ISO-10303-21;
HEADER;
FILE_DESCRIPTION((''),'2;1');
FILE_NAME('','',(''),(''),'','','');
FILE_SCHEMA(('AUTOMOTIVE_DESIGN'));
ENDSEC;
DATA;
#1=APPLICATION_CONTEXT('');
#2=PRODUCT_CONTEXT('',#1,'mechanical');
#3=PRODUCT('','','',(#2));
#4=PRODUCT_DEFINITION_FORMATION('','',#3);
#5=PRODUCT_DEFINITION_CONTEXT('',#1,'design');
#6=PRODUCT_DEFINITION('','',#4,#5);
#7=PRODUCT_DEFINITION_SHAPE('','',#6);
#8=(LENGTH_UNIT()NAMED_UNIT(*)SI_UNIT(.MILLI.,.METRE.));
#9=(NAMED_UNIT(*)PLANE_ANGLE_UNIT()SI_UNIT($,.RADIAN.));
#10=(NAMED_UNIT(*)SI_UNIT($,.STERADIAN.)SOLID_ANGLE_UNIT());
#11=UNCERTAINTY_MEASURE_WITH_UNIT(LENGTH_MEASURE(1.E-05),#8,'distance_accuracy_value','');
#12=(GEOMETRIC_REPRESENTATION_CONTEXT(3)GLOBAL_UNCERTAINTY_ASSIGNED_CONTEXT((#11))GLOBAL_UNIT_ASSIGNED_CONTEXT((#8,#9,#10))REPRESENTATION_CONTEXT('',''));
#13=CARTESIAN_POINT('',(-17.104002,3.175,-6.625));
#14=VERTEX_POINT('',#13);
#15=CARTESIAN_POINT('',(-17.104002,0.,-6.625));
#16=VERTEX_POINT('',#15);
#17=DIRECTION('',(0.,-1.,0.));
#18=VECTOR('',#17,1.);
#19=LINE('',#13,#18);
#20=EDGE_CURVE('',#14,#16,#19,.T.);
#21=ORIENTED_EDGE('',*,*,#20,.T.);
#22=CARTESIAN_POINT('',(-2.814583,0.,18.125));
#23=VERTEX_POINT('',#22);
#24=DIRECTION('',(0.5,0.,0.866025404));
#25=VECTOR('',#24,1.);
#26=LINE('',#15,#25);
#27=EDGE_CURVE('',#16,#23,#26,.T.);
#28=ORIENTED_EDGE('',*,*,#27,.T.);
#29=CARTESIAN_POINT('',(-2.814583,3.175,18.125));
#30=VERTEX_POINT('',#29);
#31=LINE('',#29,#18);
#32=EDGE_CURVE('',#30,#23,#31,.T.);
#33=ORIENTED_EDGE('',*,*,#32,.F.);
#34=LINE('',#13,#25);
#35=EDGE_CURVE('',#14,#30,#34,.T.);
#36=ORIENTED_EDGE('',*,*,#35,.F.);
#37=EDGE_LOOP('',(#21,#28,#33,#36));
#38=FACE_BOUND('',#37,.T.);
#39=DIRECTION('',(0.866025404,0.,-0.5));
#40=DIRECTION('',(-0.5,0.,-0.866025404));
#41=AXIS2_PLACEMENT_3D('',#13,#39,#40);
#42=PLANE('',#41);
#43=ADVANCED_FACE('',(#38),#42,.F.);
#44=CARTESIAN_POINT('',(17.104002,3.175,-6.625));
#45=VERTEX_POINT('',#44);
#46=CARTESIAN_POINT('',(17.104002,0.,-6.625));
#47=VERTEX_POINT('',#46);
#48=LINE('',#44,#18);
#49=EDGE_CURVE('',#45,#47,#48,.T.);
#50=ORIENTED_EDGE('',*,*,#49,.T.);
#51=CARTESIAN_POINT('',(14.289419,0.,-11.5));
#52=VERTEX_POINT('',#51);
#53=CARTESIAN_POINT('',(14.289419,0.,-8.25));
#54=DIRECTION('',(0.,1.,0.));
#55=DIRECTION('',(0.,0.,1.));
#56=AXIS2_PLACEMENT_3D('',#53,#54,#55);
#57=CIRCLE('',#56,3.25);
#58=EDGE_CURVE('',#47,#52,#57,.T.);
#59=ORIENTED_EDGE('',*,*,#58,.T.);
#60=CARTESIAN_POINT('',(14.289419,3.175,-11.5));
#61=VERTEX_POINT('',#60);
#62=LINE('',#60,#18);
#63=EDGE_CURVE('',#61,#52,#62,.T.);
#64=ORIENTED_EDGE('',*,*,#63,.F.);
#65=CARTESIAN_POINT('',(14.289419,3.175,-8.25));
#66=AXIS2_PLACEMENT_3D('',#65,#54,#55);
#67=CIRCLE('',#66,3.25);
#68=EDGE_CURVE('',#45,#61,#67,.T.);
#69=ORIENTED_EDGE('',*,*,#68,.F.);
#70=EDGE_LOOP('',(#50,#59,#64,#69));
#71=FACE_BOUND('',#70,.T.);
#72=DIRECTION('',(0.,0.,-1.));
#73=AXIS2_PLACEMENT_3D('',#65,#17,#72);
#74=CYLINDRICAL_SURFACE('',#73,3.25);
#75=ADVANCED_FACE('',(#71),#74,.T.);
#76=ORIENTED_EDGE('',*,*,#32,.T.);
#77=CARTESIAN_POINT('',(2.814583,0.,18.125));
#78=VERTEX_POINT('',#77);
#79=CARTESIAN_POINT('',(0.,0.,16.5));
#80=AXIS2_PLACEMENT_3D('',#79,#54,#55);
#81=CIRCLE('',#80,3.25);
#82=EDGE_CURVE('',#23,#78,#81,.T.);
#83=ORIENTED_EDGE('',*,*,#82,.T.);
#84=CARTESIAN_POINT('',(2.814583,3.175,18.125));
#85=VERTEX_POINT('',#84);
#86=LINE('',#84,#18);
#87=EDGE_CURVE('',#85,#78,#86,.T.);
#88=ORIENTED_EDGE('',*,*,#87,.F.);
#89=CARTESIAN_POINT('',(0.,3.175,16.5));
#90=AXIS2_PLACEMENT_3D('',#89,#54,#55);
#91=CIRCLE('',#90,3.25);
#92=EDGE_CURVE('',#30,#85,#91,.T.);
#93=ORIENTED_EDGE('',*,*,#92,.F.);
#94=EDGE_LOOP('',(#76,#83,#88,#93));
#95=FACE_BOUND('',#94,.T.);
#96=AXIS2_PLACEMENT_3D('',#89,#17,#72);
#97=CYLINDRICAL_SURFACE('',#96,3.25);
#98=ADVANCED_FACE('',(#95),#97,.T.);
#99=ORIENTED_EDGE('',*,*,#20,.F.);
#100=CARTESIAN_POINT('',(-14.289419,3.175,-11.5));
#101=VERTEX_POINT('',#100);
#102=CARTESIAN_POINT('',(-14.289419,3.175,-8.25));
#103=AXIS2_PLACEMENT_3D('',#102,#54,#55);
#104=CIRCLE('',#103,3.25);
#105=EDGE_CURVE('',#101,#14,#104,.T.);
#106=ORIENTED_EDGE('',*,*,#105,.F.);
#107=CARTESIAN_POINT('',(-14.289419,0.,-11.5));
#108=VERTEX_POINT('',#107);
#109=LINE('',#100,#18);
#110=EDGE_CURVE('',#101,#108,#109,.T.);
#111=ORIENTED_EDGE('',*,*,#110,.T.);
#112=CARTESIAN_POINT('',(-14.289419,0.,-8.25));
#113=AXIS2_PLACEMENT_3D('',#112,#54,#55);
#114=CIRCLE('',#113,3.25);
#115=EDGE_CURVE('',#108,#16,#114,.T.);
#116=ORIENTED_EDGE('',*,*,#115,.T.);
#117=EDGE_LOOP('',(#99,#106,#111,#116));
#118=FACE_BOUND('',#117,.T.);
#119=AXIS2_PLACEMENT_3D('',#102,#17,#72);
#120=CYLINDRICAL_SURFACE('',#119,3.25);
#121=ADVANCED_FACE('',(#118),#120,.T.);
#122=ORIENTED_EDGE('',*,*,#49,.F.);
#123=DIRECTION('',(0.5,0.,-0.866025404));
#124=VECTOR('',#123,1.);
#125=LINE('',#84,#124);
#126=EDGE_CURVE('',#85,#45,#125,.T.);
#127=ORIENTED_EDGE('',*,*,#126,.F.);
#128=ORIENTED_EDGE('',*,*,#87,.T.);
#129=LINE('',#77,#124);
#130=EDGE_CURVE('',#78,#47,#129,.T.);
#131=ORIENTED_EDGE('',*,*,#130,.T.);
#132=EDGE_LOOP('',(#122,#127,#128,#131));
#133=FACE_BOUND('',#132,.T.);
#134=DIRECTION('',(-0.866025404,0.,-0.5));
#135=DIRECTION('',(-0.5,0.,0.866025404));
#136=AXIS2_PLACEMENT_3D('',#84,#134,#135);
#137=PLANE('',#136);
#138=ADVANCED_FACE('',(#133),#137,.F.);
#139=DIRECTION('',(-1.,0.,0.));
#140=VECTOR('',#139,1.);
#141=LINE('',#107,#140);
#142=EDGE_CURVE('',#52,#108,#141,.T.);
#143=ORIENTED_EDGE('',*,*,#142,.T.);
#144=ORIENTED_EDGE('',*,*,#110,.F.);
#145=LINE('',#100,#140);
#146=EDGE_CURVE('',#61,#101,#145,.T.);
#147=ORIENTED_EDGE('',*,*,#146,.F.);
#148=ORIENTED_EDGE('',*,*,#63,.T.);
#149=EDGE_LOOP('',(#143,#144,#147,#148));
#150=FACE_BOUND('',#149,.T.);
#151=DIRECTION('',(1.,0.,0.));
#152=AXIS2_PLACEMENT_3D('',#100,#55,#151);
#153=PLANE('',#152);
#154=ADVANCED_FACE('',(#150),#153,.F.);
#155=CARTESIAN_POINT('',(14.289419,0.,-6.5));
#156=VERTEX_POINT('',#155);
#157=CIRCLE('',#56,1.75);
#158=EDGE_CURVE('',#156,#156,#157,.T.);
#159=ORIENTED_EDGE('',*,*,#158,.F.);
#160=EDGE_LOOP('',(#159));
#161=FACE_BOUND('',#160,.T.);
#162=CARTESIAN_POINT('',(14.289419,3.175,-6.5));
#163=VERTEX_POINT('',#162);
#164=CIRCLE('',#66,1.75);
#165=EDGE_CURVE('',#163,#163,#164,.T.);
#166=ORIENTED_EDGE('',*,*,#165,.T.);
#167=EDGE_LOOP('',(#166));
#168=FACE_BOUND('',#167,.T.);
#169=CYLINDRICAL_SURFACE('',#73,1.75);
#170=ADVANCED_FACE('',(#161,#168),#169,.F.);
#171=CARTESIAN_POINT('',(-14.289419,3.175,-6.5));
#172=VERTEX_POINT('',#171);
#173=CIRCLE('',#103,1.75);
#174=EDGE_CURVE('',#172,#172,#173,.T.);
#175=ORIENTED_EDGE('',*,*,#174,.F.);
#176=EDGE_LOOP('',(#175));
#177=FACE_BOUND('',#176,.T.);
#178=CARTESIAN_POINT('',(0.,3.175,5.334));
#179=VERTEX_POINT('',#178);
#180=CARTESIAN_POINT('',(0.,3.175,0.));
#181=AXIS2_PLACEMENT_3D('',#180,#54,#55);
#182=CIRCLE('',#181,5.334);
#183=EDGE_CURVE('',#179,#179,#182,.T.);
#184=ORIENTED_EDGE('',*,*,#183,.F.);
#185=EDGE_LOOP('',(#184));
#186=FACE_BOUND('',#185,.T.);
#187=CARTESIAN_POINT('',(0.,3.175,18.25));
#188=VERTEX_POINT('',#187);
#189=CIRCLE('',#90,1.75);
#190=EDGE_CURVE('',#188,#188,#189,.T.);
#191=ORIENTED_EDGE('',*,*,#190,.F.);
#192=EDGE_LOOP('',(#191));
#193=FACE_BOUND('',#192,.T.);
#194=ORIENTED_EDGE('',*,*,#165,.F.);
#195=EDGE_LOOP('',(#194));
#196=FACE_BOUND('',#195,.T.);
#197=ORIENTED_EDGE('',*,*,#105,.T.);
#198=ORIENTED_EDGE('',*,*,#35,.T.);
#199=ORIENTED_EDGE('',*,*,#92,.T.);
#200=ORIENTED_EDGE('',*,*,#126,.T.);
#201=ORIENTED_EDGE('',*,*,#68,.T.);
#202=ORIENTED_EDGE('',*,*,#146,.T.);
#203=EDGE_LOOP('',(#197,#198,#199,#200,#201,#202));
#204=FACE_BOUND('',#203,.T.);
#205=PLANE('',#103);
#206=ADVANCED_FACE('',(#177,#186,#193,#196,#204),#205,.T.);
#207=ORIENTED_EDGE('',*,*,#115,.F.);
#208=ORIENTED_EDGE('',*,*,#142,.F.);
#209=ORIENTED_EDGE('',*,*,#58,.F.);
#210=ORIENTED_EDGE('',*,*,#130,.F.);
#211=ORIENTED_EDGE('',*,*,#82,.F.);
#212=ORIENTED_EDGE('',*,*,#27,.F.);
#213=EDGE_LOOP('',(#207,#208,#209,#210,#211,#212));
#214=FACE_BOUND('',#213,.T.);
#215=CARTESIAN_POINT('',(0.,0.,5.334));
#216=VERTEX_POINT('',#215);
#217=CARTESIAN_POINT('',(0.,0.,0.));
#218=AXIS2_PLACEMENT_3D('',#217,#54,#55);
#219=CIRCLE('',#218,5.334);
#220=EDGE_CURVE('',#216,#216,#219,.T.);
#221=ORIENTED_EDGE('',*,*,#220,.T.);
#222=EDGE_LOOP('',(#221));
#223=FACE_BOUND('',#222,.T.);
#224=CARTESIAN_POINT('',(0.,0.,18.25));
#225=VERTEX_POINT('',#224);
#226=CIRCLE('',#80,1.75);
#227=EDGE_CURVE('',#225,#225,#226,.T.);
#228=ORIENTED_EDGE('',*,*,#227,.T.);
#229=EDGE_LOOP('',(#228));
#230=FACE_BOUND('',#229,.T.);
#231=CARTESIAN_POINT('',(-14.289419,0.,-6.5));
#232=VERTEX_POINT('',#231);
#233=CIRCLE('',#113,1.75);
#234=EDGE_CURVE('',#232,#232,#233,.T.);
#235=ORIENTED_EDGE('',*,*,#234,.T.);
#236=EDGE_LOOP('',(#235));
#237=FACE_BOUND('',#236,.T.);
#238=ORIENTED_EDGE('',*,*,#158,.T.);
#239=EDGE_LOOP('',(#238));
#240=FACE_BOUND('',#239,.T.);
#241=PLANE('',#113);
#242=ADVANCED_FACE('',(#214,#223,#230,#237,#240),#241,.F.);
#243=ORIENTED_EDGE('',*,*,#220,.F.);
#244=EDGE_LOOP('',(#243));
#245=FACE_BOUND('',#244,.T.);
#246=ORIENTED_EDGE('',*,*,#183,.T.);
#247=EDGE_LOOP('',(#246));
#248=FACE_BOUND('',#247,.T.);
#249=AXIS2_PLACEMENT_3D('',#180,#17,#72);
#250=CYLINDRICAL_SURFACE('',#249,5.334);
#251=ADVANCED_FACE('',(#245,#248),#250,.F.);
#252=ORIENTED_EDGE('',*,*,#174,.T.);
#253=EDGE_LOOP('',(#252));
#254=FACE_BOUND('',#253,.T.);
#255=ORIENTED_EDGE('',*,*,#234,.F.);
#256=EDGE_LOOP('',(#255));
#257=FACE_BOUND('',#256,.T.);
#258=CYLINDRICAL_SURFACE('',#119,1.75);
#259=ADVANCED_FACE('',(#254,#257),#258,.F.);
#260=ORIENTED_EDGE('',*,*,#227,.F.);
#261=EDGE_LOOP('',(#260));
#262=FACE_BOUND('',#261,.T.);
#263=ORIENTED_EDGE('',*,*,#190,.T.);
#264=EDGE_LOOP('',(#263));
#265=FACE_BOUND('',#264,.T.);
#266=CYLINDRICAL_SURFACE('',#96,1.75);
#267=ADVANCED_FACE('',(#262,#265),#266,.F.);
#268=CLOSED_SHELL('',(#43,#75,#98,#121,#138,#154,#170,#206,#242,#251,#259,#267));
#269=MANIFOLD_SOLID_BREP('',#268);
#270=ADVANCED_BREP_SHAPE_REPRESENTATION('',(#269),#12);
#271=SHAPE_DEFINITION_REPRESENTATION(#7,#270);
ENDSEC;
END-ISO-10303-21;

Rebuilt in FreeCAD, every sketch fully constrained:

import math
import FreeCAD as App
import Part
import Sketcher
Q = App.Units.Quantity

doc = App.newDocument("Part")
body = doc.addObject("PartDesign::Body", "Body")

# Sketch on XZ plane
sketch1 = body.newObject("Sketcher::SketchObject", "Sketch")
sketch1.AttachmentSupport = (doc.getObject("XZ_Plane"), [""])
sketch1.MapMode = "FlatFace"
sketch1.addGeometry([
    Part.LineSegment(App.Vector(-17.1, -6.6, 0), App.Vector(-2.8, 18.1, 0)),  # 0
    Part.ArcOfCircle(Part.Circle(App.Vector(0, 16.5, 0), App.Vector(0, 0, 1), 3.2), math.radians(30), math.radians(150)),  # 1
    Part.LineSegment(App.Vector(2.8, 18.1, 0), App.Vector(17.1, -6.6, 0)),  # 2
    Part.ArcOfCircle(Part.Circle(App.Vector(14.3, -8.2, 0), App.Vector(0, 0, 1), 3.2), math.radians(-90), math.radians(30)),  # 3
    Part.LineSegment(App.Vector(14.3, -11.5, 0), App.Vector(-14.3, -11.5, 0)),  # 4
    Part.ArcOfCircle(Part.Circle(App.Vector(-14.3, -8.2, 0), App.Vector(0, 0, 1), 3.2), math.radians(150), math.radians(270)),  # 5
    Part.Circle(App.Vector(0, 16.5, 0), App.Vector(0, 0, 1), 1.8),  # 6
    Part.Circle(App.Vector(-14.3, -8.2, 0), App.Vector(0, 0, 1), 1.8),  # 7
    Part.Circle(App.Vector(0, 0, 0), App.Vector(0, 0, 1), 5.3),  # 8
    Part.Circle(App.Vector(14.3, -8.2, 0), App.Vector(0, 0, 1), 1.8),  # 9
], False)
sketch1.addConstraint([
    Sketcher.Constraint("Tangent", 0, 2, 1, 2),
    Sketcher.Constraint("Tangent", 1, 1, 2, 1),
    Sketcher.Constraint("Tangent", 2, 2, 3, 2),
    Sketcher.Constraint("Tangent", 3, 1, 4, 1),
    Sketcher.Constraint("Tangent", 4, 2, 5, 2),
    Sketcher.Constraint("Tangent", 5, 1, 0, 1),
    Sketcher.Constraint("Horizontal", 4),
    Sketcher.Constraint("Coincident", 8, 3, -1, 1),
    Sketcher.Constraint("Coincident", 6, 3, 1, 3),
    Sketcher.Constraint("Coincident", 7, 3, 5, 3),
    Sketcher.Constraint("Coincident", 9, 3, 3, 3),
    Sketcher.Constraint("Equal", 1, 3),
    Sketcher.Constraint("Equal", 3, 5),
    Sketcher.Constraint("Equal", 6, 7),
    Sketcher.Constraint("Equal", 7, 9),
    Sketcher.Constraint("Symmetric", 0, 2, 1, 1, -2),
    Sketcher.Constraint("Diameter", 6, 3.5),
    Sketcher.Constraint("Angle", 0, Q("60 deg")),
    Sketcher.Constraint("Radius", 1, 3.25),
    Sketcher.Constraint("Diameter", 8, 10.668),
    Sketcher.Constraint("DistanceY", -1, 1, 1, 3, 16.5),
    Sketcher.Constraint("DistanceY", 3, 1, -1, 1, 11.5),
])
pad1 = body.newObject("PartDesign::Pad", "Pad")
pad1.Profile = sketch1
pad1.Length = 3.175
pad1.Reversed = True

doc.recompute()
